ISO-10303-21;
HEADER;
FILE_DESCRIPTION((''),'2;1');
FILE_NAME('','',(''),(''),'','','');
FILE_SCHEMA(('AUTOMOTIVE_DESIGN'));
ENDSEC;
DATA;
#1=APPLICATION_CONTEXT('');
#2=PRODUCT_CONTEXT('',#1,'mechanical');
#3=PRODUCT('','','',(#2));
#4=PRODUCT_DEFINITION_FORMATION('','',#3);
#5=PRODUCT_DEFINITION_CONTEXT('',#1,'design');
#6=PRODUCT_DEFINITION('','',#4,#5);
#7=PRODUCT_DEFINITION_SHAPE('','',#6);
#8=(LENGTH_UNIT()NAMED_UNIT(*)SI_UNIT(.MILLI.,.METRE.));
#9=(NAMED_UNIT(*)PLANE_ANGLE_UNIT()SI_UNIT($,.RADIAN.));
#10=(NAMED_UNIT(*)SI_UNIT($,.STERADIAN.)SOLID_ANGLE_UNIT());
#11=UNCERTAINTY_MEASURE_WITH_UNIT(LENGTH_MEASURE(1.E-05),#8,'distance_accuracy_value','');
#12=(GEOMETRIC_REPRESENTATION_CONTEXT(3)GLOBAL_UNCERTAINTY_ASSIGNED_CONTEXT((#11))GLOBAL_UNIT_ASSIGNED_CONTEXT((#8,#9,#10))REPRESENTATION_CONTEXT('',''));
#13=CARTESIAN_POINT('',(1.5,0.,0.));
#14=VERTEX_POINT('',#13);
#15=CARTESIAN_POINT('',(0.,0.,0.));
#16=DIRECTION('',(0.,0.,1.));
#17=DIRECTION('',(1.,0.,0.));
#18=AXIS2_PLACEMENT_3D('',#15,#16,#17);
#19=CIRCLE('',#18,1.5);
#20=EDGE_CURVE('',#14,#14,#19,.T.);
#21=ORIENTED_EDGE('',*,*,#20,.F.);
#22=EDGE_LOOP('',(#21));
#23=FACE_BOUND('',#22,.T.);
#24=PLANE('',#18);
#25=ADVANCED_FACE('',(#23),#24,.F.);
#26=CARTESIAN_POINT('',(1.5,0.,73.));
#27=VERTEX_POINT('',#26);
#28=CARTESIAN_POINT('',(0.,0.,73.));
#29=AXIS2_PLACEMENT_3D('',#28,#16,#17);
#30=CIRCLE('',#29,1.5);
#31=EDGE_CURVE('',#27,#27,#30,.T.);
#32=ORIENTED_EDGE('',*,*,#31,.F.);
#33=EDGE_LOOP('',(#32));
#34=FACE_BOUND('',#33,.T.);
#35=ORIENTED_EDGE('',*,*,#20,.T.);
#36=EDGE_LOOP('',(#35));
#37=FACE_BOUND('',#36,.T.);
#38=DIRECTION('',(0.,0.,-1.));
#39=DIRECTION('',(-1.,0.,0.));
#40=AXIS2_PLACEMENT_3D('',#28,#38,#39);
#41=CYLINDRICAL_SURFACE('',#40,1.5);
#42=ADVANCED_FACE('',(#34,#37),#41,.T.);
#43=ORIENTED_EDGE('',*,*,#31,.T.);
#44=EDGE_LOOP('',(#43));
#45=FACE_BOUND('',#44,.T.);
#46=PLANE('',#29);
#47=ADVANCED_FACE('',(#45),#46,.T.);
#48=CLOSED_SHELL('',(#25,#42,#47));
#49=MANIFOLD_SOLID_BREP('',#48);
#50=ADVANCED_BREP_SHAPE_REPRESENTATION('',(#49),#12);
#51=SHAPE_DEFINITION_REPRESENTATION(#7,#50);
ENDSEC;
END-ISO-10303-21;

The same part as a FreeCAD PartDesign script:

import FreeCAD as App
import Part
import Sketcher
from FreeCAD import Vector
Q = App.Units.Quantity

doc = App.newDocument("Part")
params = doc.addObject("Spreadsheet::Sheet", "Params")
for row, (alias, value) in enumerate([
    ("sketch1_diameter", "3 mm"),
    ("pad1_length", "73 mm"),
], start=1):
    params.set(f"A{row}", alias)
    params.set(f"B{row}", "=" + value)
    params.setAlias(f"B{row}", alias)

body = doc.addObject("PartDesign::Body", "Body")

sketch1 = body.newObject("Sketcher::SketchObject", "Sketch")
sketch1.AttachmentSupport = (doc.getObject("XY_Plane"), [""])
sketch1.MapMode = "FlatFace"
sketch1.addGeometry(Part.Circle(Vector(0, 0, 0), Vector(0, 0, 1), 1.5), False)
sketch1.addConstraint(Sketcher.Constraint("Coincident", 0, 3, -1, 1))
sketch1.addConstraint(Sketcher.Constraint("Diameter", 0, Q("3 mm")))
sketch1.setExpression("Constraints[1]", "Params.sketch1_diameter")
pad1 = body.newObject("PartDesign::Pad", "Pad")
pad1.Profile = sketch1
pad1.setExpression("Length", "Params.pad1_length")

doc.recompute()
